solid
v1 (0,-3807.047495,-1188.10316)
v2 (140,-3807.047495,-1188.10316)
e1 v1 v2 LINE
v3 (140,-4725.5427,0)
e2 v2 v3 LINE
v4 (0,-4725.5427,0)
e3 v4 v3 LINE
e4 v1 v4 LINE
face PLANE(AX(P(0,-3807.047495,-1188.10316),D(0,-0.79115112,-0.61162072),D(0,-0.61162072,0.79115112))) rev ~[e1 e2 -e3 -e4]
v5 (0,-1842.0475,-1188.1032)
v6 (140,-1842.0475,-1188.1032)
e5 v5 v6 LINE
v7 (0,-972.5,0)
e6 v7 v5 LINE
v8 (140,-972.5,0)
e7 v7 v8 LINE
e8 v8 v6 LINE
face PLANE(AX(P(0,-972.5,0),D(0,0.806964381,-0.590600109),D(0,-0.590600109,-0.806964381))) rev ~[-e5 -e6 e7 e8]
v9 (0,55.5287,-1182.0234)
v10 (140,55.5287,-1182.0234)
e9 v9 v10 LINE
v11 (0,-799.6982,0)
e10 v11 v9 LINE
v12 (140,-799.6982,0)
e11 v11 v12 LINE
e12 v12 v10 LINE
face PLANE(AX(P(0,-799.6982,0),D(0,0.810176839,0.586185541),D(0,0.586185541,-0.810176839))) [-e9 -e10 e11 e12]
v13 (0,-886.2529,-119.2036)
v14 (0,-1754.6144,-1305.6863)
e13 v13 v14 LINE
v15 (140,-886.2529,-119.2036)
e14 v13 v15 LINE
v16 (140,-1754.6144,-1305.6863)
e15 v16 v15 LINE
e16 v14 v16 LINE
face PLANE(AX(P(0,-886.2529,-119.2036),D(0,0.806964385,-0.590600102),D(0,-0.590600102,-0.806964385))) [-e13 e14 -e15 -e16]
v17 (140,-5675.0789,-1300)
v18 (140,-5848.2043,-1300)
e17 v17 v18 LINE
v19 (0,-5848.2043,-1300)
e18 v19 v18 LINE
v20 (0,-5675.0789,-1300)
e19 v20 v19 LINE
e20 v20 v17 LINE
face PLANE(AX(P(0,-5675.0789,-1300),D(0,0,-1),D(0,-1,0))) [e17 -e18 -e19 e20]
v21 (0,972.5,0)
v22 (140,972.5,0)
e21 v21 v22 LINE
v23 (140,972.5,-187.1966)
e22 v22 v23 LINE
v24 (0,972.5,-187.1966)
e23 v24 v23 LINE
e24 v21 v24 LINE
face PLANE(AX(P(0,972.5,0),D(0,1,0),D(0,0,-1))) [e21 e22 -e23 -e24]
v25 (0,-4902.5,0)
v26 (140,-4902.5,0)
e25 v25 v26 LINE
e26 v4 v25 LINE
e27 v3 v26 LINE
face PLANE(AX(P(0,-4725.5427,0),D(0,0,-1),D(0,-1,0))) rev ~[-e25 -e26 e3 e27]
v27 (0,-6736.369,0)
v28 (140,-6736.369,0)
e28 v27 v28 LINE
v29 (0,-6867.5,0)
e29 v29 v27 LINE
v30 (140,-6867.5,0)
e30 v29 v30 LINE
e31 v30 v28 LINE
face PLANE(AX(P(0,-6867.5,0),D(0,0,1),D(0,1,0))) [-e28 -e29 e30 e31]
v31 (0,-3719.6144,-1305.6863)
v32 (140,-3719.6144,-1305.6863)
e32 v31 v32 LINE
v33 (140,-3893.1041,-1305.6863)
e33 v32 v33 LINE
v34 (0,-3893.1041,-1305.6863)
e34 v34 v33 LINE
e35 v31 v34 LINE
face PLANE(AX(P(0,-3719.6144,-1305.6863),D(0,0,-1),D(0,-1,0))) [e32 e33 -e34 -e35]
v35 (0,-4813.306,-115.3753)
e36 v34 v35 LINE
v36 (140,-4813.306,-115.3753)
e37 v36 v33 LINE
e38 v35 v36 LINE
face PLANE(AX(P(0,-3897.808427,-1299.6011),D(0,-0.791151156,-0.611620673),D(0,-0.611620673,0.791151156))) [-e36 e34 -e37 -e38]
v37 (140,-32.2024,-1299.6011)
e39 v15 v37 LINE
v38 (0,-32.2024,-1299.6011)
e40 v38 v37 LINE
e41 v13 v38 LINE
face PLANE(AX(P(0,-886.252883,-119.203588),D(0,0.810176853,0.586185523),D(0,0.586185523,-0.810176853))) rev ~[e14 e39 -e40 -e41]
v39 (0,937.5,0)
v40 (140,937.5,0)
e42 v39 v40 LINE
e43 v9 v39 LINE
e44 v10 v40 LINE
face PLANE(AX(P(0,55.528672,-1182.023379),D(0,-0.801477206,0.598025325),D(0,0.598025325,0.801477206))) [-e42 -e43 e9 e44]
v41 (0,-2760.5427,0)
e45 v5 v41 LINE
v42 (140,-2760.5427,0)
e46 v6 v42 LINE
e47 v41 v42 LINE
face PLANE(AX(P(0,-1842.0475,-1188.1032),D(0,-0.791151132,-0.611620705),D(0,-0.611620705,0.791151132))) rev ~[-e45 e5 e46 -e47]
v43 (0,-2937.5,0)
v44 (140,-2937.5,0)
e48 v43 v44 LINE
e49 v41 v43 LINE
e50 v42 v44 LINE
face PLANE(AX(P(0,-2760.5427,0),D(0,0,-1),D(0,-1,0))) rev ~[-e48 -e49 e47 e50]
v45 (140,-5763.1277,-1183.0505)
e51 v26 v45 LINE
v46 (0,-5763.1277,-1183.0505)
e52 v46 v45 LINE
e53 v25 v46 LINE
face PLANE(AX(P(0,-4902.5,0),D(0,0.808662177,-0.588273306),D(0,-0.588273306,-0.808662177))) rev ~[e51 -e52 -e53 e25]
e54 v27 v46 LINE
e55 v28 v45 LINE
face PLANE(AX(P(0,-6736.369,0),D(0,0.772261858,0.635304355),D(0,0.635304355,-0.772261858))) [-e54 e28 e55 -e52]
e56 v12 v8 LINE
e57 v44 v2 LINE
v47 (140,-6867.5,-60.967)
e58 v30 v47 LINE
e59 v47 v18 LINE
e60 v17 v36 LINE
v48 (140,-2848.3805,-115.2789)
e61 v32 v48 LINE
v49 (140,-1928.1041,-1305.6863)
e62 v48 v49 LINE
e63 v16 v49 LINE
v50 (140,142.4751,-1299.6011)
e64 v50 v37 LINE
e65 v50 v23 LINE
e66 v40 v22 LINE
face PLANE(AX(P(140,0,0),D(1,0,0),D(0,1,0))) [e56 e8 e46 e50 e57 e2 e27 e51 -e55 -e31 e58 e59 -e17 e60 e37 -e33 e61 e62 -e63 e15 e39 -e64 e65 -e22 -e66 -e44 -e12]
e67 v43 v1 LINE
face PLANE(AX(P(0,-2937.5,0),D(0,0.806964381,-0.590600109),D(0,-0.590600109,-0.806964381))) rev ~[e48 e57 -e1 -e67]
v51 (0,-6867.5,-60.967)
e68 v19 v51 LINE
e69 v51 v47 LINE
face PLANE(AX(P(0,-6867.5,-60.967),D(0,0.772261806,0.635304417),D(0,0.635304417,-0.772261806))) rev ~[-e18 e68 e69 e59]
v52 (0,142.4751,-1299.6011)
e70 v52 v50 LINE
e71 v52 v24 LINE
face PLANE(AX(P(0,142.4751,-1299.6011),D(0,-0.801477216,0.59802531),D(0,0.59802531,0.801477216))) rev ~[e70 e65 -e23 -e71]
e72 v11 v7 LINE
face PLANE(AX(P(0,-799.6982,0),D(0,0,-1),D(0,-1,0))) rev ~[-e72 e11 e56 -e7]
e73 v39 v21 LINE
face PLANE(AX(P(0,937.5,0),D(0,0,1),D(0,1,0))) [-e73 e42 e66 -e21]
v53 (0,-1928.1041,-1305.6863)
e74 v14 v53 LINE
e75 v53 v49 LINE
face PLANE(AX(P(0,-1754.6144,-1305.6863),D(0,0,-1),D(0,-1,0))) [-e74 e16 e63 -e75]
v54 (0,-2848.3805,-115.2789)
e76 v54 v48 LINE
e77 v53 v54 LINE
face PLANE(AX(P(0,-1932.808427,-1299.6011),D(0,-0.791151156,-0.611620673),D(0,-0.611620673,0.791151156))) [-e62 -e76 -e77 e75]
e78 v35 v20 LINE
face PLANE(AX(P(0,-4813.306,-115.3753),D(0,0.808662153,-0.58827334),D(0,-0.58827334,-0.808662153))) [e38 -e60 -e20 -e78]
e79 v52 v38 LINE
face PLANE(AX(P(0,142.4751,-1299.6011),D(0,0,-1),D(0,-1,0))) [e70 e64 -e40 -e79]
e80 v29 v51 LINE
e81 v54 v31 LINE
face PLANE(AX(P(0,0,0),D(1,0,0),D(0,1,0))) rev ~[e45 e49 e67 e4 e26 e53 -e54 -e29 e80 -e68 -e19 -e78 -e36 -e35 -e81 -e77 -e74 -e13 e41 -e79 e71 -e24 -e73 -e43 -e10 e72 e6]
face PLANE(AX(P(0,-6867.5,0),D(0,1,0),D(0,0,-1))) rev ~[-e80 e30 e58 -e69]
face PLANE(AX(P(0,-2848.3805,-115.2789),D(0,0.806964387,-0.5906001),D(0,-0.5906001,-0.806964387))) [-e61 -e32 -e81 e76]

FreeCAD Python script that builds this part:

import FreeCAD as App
import Part
import Sketcher
from FreeCAD import Vector
Q = App.Units.Quantity


def add_polygon(sketch, points):
    """Adds a closed chain of lines whose ends are joined by coincident constraints."""
    first, n = sketch.GeometryCount, len(points)
    for a, b in zip(points, points[1:] + points[:1]):
        sketch.addGeometry(Part.LineSegment(App.Vector(*a, 0), App.Vector(*b, 0)), False)
    for i in range(n):
        sketch.addConstraint(Sketcher.Constraint("Coincident", first + i, 2, first + (i + 1) % n, 1))

doc = App.newDocument("Part")
body = doc.addObject("PartDesign::Body", "Body")

sketch1 = body.newObject("Sketcher::SketchObject", "Sketch")
sketch1.AttachmentSupport = (doc.getObject("YZ_Plane"), [""])
sketch1.MapMode = "FlatFace"
add_polygon(sketch1, [(972, 0), (938, 0), (56, -1182), (-800, 0), (-972, 0), (-1842, -1188), (-2761, 0), (-2938, 0), (-3807, -1188), (-4726, 0), (-4902, 0), (-5763, -1183), (-6736, 0), (-6868, 0), (-6868, -61), (-5848, -1300), (-5675, -1300), (-4813, -115), (-3893, -1306), (-3720, -1306), (-2848, -115), (-1928, -1306), (-1755, -1306), (-886, -119), (-32, -1300), (142, -1300), (972, -187)])
sketch1.addConstraint([
    Sketcher.Constraint("Horizontal", 0),
    Sketcher.Constraint("Horizontal", 3),
    Sketcher.Constraint("Horizontal", 6),
    Sketcher.Constraint("Horizontal", 9),
    Sketcher.Constraint("Horizontal", 12),
    Sketcher.Constraint("Vertical", 13),
    Sketcher.Constraint("Horizontal", 15),
    Sketcher.Constraint("Horizontal", 18),
    Sketcher.Constraint("Horizontal", 21),
    Sketcher.Constraint("Horizontal", 24),
    Sketcher.Constraint("Vertical", 26),
    Sketcher.Constraint("Symmetric", 3, 2, 26, 2, -1, 1),
    Sketcher.Constraint("PointOnObject", 0, 2, -1),
    Sketcher.Constraint("PointOnObject", 5, 2, -1),
    Sketcher.Constraint("PointOnObject", 8, 2, -1),
    Sketcher.Constraint("PointOnObject", 11, 2, -1),
    Sketcher.Constraint("Parallel", 4, 7),
    Sketcher.Constraint("Parallel", 5, 8),
    Sketcher.Constraint("Parallel", 11, 14),
    Sketcher.Constraint("Parallel", 10, 16),
    Sketcher.Constraint("Parallel", 8, 17),
    Sketcher.Constraint("Parallel", 7, 19),
    Sketcher.Constraint("Parallel", 17, 20),
    Sketcher.Constraint("Parallel", 19, 22),
    Sketcher.Constraint("Parallel", 2, 23),
    Sketcher.Constraint("Parallel", 1, 25),
    Sketcher.Constraint("Horizontal", 4, 2, 7, 2),
    Sketcher.Constraint("Horizontal", 18, 2, 20, 2),
    Sketcher.Constraint("Equal", 6, 9),
    Sketcher.Constraint("Equal", 18, 21),
    Sketcher.Constraint("DistanceX", 0, 2, 0, 1, 35.0),
    Sketcher.Constraint("DistanceY", 14, 2, -1, 1, 1300.0),
    Sketcher.Constraint("DistanceX", 6, 2, 3, 2, 1965.0),
    Sketcher.Constraint("DistanceX", 12, 2, 9, 2, 1965.0),
    Sketcher.Constraint("DistanceX", 3, 2, -1, 1, 972.5),
    Sketcher.Constraint("Angle", 4, Q("-126.1996 deg")),
    Sketcher.Constraint("DistanceX", 12, 2, 12, 1, 131.131),
    Sketcher.Constraint("DistanceY", 13, 2, 13, 1, 60.967),
    Sketcher.Constraint("DistanceX", 11, 2, 15, 2, 1061.29),
    Sketcher.Constraint("Distance", 1, 1474.806),
    Sketcher.Constraint("Distance", 14, 1604.421),
    Sketcher.Constraint("DistanceX", 3, 2, 3, 1, 172.8018),
    Sketcher.Constraint("DistanceX", 6, 2, 6, 1, 176.9573),
    Sketcher.Constraint("DistanceX", 18, 1, 18, 2, 173.4897),
    Sketcher.Constraint("DistanceX", 24, 1, 24, 2, 174.6775),
    Sketcher.Constraint("DistanceY", 26, 1, 26, 2, 187.1966),
    Sketcher.Constraint("DistanceX", 16, 2, -1, 1, 4813.306),
    Sketcher.Constraint("DistanceX", 17, 2, -1, 1, 3893.104),
    Sketcher.Constraint("DistanceY", 19, 2, -1, 1, 115.279),
    Sketcher.Constraint("DistanceX", 20, 2, -1, 1, 1928.104),
    Sketcher.Constraint("DistanceX", 22, 2, -1, 1, 886.253),
    Sketcher.Constraint("DistanceY", 23, 2, -1, 1, 1299.601),
    Sketcher.Constraint("DistanceX", -1, 1, 24, 2, 142.475),
])
pad1 = body.newObject("PartDesign::Pad", "Pad")
pad1.Profile = sketch1
pad1.Length = 140

doc.recompute()
